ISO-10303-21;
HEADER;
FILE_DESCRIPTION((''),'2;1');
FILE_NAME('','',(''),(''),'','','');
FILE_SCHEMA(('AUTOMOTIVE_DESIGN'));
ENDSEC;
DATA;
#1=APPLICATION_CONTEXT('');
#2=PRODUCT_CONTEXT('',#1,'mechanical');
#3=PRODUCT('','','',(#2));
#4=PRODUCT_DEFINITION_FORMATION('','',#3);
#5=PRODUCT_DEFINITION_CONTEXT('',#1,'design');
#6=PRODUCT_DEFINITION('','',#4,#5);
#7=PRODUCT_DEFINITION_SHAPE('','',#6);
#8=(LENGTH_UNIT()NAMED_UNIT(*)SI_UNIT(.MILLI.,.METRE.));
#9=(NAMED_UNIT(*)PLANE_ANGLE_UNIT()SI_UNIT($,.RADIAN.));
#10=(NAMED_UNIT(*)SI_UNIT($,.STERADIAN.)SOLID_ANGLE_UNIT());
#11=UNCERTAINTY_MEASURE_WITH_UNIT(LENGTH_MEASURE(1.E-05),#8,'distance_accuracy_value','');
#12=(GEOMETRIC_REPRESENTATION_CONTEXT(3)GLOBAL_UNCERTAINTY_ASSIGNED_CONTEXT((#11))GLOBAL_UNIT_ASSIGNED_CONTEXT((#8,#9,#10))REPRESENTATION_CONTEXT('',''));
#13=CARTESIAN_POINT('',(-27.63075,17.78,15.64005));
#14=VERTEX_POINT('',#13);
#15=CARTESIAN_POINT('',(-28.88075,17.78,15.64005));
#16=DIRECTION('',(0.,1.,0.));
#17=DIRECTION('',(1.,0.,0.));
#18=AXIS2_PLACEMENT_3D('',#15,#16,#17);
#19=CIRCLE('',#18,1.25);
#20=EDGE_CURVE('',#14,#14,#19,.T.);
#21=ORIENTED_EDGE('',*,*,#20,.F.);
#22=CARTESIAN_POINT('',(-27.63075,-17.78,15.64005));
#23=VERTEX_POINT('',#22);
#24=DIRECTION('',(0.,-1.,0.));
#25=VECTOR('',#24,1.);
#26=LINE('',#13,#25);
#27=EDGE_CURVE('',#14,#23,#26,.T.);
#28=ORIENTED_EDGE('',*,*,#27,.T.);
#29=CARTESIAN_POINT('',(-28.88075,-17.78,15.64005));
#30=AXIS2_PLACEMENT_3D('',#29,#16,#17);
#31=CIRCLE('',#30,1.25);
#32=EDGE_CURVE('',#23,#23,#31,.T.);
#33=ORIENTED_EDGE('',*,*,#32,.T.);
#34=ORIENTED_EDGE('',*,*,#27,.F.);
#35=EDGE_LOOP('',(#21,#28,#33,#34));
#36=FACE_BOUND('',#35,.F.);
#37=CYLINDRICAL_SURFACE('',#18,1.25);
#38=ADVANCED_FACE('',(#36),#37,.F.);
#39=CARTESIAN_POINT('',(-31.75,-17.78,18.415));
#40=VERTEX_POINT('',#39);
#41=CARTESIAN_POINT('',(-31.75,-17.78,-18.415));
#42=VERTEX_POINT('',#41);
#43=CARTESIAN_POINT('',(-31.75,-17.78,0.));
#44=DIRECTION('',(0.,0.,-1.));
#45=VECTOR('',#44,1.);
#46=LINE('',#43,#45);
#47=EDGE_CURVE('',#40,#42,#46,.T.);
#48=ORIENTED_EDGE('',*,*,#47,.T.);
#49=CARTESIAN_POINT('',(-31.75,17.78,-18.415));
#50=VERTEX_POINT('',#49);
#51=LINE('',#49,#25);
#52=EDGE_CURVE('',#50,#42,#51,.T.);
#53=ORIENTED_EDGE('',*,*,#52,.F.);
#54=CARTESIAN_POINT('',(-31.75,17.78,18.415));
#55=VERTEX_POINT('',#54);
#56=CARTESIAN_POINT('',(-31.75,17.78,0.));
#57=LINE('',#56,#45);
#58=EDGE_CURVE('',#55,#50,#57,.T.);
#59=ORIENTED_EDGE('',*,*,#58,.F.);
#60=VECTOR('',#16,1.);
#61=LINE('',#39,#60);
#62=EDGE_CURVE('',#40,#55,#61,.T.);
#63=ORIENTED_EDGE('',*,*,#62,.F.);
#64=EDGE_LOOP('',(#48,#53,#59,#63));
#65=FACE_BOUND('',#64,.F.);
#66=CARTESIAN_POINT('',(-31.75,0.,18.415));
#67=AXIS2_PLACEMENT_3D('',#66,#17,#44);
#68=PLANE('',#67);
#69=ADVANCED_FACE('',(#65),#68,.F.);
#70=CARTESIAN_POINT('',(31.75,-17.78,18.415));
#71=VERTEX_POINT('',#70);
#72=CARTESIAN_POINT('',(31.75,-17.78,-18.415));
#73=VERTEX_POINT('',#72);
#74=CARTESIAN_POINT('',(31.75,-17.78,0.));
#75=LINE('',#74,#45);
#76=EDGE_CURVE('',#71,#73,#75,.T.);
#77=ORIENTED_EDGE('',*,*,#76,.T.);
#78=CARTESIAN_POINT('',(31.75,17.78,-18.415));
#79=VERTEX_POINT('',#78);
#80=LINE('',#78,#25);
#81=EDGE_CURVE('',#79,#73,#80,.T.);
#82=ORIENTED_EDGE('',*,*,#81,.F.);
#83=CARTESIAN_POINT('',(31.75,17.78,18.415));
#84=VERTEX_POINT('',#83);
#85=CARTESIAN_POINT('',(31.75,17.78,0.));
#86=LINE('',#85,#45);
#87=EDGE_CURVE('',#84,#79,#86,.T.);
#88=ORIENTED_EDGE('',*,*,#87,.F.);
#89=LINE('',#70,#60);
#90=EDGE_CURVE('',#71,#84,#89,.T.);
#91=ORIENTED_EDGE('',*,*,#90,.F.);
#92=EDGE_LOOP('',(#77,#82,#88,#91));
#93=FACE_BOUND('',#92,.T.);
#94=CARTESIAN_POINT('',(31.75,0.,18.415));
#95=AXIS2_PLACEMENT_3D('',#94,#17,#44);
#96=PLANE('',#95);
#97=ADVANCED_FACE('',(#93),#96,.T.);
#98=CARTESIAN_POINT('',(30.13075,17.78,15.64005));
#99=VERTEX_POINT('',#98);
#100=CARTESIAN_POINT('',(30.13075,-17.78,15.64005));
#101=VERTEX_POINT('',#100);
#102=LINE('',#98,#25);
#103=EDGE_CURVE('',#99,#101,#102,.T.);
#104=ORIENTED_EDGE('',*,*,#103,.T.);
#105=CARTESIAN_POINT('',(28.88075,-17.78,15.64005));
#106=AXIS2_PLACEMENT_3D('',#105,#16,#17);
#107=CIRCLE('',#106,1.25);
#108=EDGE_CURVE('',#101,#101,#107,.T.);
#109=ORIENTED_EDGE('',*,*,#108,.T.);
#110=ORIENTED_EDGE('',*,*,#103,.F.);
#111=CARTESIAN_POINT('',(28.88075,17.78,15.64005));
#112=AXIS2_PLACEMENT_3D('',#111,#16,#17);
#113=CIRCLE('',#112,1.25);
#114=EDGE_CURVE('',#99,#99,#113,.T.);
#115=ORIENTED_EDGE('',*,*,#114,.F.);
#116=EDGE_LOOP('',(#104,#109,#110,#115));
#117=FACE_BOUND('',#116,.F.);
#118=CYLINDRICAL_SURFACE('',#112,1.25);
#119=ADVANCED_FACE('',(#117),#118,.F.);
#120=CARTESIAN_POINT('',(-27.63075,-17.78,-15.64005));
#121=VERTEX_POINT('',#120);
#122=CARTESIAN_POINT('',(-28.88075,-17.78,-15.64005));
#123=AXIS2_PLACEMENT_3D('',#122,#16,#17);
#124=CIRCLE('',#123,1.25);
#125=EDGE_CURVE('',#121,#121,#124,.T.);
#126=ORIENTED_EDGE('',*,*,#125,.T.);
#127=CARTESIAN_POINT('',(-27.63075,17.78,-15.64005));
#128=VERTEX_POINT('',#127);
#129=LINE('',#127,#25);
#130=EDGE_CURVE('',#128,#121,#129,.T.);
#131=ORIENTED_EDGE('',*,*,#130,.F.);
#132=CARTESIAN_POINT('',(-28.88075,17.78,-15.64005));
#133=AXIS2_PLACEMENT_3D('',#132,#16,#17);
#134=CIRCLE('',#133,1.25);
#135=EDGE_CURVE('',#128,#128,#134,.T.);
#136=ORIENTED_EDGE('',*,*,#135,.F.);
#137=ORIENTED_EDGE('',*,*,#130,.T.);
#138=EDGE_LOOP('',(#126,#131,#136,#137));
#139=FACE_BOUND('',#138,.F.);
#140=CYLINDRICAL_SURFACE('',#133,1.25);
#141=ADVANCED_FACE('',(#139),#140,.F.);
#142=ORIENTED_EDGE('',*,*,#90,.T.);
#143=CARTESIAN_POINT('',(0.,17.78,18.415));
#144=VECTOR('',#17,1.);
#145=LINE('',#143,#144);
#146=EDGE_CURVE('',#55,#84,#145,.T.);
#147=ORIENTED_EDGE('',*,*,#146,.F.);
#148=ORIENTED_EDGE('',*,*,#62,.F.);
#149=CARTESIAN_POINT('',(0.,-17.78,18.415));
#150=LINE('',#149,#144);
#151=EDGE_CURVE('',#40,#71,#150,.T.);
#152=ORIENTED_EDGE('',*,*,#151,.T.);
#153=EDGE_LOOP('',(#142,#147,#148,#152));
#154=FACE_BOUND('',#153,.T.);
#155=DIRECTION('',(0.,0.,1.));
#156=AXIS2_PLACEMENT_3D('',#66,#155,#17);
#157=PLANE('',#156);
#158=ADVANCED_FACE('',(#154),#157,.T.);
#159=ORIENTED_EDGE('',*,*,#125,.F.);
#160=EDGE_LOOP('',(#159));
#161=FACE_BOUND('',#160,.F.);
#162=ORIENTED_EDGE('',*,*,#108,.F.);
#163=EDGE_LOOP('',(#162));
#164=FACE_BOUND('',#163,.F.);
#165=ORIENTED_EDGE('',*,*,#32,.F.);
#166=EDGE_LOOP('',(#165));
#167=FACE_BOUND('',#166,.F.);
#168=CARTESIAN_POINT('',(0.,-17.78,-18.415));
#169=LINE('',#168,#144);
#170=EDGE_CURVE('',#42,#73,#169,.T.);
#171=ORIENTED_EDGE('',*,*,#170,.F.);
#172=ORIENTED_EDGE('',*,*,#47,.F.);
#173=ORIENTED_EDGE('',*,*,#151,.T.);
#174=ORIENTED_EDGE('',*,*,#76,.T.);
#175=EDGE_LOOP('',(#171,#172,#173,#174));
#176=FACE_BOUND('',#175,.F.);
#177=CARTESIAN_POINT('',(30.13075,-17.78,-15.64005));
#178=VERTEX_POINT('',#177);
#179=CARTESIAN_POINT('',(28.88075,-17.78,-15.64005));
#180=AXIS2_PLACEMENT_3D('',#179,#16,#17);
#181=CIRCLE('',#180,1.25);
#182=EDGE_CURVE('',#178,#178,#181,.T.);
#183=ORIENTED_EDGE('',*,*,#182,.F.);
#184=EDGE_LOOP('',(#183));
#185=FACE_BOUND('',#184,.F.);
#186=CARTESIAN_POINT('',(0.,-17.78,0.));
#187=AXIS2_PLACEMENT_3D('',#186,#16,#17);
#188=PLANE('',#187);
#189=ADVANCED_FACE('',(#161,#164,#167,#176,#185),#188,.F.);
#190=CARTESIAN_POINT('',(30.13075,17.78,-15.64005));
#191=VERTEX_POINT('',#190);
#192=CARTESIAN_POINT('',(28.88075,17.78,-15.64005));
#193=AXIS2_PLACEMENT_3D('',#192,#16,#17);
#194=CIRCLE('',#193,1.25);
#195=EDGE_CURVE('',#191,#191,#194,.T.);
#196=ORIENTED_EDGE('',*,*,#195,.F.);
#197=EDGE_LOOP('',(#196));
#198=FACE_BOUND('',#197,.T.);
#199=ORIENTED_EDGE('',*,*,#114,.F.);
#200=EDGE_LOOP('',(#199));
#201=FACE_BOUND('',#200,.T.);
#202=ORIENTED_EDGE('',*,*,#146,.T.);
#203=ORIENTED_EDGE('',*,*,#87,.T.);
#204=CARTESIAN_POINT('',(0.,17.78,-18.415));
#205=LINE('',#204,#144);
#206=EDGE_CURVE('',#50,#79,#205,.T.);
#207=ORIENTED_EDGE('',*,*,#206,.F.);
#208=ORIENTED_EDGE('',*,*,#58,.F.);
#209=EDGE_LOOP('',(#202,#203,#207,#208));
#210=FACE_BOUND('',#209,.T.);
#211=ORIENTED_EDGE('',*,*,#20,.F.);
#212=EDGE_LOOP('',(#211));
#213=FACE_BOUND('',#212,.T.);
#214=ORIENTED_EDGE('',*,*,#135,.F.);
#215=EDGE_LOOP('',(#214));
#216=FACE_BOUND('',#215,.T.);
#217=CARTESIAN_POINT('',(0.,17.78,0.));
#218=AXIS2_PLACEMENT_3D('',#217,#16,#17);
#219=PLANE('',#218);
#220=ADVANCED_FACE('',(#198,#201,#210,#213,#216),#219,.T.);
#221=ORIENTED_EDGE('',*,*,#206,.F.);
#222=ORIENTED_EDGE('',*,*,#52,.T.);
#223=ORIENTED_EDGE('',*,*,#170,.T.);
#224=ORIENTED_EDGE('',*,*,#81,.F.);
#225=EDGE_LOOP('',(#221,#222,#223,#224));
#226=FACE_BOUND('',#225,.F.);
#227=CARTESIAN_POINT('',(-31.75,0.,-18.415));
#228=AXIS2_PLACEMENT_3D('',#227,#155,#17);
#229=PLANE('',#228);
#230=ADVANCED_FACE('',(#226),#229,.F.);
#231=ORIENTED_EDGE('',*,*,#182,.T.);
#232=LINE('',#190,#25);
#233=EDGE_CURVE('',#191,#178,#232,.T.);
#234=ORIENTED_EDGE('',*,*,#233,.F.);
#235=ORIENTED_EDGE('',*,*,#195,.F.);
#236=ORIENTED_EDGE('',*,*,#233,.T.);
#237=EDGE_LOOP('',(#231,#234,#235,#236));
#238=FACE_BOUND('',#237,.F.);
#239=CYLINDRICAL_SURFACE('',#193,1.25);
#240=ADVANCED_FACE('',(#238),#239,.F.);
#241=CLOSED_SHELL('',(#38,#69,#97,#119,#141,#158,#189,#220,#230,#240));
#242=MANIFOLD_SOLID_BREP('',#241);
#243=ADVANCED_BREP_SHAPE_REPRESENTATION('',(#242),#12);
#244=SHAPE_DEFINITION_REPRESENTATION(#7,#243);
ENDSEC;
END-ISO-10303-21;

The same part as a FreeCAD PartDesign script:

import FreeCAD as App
import Part
import Sketcher
Q = App.Units.Quantity

doc = App.newDocument("Part")
body = doc.addObject("PartDesign::Body", "Body")

sketch1 = body.newObject("Sketcher::SketchObject", "Sketch")
sketch1.AttachmentSupport = (doc.getObject("XZ_Plane"), [""])
sketch1.MapMode = "FlatFace"
sketch1.addGeometry(Part.LineSegment(App.Vector(-32, -18, 0), App.Vector(-32, 18, 0)), False)
sketch1.addGeometry(Part.LineSegment(App.Vector(-32, 18, 0), App.Vector(32, 18, 0)), False)
sketch1.addGeometry(Part.LineSegment(App.Vector(32, 18, 0), App.Vector(32, -18, 0)), False)
sketch1.addGeometry(Part.LineSegment(App.Vector(32, -18, 0), App.Vector(-32, -18, 0)), False)
sketch1.addConstraint(Sketcher.Constraint("Coincident", 0, 2, 1, 1))
sketch1.addConstraint(Sketcher.Constraint("Coincident", 1, 2, 2, 1))
sketch1.addConstraint(Sketcher.Constraint("Coincident", 2, 2, 3, 1))
sketch1.addConstraint(Sketcher.Constraint("Coincident", 3, 2, 0, 1))
sketch1.addConstraint(Sketcher.Constraint("Vertical", 0))
sketch1.addConstraint(Sketcher.Constraint("Horizontal", 1))
sketch1.addConstraint(Sketcher.Constraint("Vertical", 2))
sketch1.addConstraint(Sketcher.Constraint("Horizontal", 3))
sketch1.addConstraint(Sketcher.Constraint("Symmetric", 0, 2, 2, 2, -1, 1))
sketch1.addConstraint(Sketcher.Constraint("DistanceX", 1, 1, 1, 2, Q("2.5 in")))
sketch1.addConstraint(Sketcher.Constraint("DistanceY", 0, 1, 0, 2, Q("1.45 in")))
pad1 = body.newObject("PartDesign::Pad", "Pad")
pad1.Profile = sketch1
pad1.Length = Q("1.4 in")
pad1.Midplane = True

sketch2 = body.newObject("Sketcher::SketchObject", "Sketch001")
sketch2.AttachmentSupport = (doc.getObject("XZ_Plane"), [""])
sketch2.MapMode = "FlatFace"
sketch2.AttachmentOffset = App.Placement(App.Vector(0, 0, -0.7 * 25.4), App.Rotation())
sketch2.addGeometry(Part.Circle(App.Vector(-28.9, -15.6, 0), App.Vector(0, 0, 1), 1.2), False)
sketch2.addGeometry(Part.Circle(App.Vector(28.9, -15.6, 0), App.Vector(0, 0, 1), 1.2), False)
sketch2.addGeometry(Part.Circle(App.Vector(28.9, 15.6, 0), App.Vector(0, 0, 1), 1.2), False)
sketch2.addGeometry(Part.Circle(App.Vector(-28.9, 15.6, 0), App.Vector(0, 0, 1), 1.2), False)
sketch2.addConstraint(Sketcher.Constraint("Equal", 0, 1))
sketch2.addConstraint(Sketcher.Constraint("Equal", 1, 2))
sketch2.addConstraint(Sketcher.Constraint("Equal", 2, 3))
sketch2.addConstraint(Sketcher.Constraint("Symmetric", 0, 3, 2, 3, -1, 1))
sketch2.addConstraint(Sketcher.Constraint("Symmetric", 1, 3, 3, 3, -1, 1))
sketch2.addConstraint(Sketcher.Constraint("Symmetric", 0, 3, 1, 3, -2))
sketch2.addConstraint(Sketcher.Constraint("Diameter", 0, Q("2.5 mm")))
sketch2.addConstraint(Sketcher.Constraint("DistanceY", 1, 3, 2, 3, Q("1.2315 in")))
sketch2.addConstraint(Sketcher.Constraint("DistanceX", 0, 3, 1, 3, Q("57.7615 mm")))
pocket1 = body.newObject("PartDesign::Pocket", "Pocket")
pocket1.Profile = sketch2
pocket1.Type = "ThroughAll"
pocket1.Midplane = True

doc.recompute()
